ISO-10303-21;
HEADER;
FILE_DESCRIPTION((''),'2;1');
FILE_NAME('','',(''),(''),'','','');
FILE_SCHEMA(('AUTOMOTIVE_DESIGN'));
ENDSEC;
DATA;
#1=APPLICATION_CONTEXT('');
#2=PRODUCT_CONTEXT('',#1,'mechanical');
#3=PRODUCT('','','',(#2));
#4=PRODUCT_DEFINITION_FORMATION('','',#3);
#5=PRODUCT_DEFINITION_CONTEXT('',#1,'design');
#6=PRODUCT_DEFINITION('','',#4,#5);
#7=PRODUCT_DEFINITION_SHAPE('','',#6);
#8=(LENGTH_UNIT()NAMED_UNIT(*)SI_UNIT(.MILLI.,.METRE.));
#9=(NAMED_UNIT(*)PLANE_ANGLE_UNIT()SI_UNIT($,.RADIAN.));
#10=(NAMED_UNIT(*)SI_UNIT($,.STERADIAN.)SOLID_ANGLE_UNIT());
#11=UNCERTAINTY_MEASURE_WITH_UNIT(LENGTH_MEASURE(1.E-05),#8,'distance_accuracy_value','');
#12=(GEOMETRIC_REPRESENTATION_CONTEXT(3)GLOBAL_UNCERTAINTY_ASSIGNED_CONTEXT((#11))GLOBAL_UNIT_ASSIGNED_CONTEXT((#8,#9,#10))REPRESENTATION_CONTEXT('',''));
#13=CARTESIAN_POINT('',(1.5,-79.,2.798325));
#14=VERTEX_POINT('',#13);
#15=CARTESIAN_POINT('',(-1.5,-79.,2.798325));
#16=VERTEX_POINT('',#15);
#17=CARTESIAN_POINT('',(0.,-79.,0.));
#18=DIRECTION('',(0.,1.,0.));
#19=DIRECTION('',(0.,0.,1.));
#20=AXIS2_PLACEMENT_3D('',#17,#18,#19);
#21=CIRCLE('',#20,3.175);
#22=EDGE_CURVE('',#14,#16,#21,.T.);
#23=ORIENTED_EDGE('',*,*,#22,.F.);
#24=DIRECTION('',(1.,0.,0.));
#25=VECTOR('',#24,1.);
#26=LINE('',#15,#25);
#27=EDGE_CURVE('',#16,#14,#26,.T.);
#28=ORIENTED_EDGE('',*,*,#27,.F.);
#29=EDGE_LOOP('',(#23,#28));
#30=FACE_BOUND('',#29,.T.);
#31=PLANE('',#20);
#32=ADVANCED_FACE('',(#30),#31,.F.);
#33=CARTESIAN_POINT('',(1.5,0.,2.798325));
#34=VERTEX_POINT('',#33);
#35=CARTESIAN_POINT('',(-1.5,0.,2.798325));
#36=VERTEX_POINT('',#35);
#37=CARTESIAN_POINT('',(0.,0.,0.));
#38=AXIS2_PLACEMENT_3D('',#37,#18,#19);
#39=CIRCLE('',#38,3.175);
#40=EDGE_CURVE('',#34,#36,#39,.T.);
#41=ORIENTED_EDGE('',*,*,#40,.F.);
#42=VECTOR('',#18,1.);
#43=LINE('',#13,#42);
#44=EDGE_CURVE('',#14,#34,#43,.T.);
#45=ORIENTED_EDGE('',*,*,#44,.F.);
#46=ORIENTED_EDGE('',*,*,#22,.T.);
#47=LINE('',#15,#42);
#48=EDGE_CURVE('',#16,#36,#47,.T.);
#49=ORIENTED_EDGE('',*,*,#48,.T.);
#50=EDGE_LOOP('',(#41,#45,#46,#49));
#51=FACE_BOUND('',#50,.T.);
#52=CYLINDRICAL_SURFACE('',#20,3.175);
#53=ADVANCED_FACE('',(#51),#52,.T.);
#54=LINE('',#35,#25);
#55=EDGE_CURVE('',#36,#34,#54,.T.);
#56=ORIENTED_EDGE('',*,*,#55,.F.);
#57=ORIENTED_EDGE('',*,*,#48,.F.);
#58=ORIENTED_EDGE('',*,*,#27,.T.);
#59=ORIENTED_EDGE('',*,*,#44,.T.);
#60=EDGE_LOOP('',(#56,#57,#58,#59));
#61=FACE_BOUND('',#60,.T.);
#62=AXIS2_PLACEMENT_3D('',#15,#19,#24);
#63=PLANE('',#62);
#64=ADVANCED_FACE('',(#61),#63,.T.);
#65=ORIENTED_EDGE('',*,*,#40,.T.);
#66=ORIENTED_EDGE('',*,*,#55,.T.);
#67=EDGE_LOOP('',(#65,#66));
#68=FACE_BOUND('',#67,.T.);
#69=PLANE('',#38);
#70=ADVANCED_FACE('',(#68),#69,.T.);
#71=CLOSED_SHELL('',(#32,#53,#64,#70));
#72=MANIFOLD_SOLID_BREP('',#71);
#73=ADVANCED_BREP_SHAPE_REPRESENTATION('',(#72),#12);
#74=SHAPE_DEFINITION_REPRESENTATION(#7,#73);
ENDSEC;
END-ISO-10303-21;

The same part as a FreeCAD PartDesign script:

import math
import FreeCAD as App
import Part
import Sketcher
from FreeCAD import Vector

doc = App.newDocument("Part")
params = doc.addObject("Spreadsheet::Sheet", "Params")
for row, (alias, value) in enumerate([
    ("sketch1_width", "3 mm"),
    ("pad1_length", "79 mm"),
], start=1):
    params.set(f"A{row}", alias)
    params.set(f"B{row}", "=" + value)
    params.setAlias(f"B{row}", alias)

body = doc.addObject("PartDesign::Body", "Body")

sketch1 = doc.addObject("Sketcher::SketchObject", "Sketch")
body.addObject(sketch1)
sketch1.AttachmentSupport = (doc.XZ_Plane, [""])
sketch1.MapMode = "FlatFace"
sketch1.addGeometry([
    Part.LineSegment(Vector(-1.5, 2.798325, 0), Vector(1.5, 2.798325, 0)),
    Part.ArcOfCircle(Part.Circle(Vector(0, 0, 0), Vector(0, 0, 1), 3.175), math.radians(118.192861), math.radians(421.807139)),
], False)
sketch1.addConstraint([
    Sketcher.Constraint("Coincident", 0, 1, 1, 1),
    Sketcher.Constraint("Coincident", 1, 2, 0, 2),
    Sketcher.Constraint("Horizontal", 0),
    Sketcher.Constraint("Coincident", 1, 3, -1, 1),
    Sketcher.Constraint("DistanceX", 0, 1, 0, 2, 3.0),
    Sketcher.Constraint("Radius", 1, 3.175),
])
sketch1.setExpression("Constraints[4]", "Params.sketch1_width")
pad1 = doc.addObject("PartDesign::Pad", "Pad")
body.addObject(pad1)
pad1.Profile = sketch1
pad1.setExpression("Length", "Params.pad1_length")

doc.recompute()
